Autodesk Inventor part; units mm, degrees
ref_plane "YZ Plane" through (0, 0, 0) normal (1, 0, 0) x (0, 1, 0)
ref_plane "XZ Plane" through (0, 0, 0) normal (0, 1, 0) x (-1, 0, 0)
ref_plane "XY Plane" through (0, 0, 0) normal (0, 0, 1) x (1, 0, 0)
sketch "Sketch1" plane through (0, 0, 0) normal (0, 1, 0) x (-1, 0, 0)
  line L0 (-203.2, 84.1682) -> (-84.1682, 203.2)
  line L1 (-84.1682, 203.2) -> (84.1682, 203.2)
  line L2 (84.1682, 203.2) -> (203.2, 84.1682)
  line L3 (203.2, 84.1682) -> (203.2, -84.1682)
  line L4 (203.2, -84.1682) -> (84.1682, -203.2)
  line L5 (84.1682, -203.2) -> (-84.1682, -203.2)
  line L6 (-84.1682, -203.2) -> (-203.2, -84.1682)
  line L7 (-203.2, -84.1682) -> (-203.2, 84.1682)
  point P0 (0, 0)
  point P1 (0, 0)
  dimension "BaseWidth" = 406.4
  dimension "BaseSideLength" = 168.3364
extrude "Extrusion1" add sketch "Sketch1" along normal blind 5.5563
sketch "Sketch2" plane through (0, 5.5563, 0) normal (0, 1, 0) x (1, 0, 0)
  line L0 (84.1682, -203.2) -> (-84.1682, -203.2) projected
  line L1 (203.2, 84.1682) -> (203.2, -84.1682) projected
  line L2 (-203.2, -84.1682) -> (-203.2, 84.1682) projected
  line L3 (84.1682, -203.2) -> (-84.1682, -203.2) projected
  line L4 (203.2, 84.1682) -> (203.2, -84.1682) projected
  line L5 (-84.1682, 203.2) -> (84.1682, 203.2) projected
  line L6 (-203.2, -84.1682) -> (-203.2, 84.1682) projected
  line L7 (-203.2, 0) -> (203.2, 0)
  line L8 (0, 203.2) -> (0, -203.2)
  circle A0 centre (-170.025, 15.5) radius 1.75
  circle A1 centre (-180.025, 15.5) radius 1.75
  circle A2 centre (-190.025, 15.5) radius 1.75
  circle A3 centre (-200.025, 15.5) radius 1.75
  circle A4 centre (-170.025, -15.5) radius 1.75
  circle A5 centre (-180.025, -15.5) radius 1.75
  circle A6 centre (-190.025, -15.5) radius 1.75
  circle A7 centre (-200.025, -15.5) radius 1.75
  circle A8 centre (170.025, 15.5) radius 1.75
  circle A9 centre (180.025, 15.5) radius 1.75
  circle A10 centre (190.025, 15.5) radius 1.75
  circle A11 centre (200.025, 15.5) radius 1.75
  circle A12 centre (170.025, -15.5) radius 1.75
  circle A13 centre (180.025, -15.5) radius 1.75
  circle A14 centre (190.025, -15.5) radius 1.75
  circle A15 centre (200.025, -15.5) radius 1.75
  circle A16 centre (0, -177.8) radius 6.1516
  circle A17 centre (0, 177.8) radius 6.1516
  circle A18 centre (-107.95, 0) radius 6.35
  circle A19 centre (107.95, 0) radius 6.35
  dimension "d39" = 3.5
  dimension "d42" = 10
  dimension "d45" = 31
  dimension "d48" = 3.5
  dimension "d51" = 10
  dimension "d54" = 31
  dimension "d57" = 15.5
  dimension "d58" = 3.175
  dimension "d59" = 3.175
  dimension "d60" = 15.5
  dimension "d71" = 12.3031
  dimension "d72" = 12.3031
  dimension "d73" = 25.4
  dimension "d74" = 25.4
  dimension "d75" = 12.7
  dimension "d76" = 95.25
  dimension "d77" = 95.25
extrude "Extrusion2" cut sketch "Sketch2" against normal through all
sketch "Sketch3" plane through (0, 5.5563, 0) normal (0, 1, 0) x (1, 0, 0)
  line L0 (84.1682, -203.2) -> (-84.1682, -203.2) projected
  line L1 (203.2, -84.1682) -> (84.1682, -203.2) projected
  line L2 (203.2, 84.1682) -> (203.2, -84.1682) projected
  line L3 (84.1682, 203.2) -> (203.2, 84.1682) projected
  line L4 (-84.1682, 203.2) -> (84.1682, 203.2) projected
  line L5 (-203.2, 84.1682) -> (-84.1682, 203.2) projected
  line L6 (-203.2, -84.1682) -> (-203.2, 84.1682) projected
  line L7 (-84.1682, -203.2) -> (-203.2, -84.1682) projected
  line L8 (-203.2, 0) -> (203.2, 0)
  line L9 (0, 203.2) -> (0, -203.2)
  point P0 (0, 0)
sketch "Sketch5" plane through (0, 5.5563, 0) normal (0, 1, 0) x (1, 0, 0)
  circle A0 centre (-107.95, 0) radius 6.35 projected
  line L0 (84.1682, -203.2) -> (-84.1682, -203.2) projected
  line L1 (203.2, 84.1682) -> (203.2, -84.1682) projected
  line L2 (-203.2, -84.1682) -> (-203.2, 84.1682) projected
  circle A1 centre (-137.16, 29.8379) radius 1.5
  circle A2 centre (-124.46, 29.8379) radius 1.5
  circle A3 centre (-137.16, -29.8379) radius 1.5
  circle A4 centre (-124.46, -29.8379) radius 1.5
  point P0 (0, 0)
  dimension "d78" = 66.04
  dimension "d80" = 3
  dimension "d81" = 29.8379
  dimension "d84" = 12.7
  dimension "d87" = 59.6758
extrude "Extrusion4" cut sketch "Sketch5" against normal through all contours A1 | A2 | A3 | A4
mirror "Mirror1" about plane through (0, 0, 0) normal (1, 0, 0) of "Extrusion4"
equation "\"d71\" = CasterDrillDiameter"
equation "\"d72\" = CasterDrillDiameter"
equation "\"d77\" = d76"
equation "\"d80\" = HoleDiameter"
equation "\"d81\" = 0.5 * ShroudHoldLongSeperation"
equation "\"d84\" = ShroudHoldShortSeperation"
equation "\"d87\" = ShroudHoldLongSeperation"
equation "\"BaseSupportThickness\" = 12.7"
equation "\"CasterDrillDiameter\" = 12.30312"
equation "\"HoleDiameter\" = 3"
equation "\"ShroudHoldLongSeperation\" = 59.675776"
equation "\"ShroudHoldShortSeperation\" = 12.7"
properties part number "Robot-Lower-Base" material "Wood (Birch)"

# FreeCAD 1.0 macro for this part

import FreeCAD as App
import Part
import Sketcher
Q = App.Units.Quantity

doc = App.newDocument("Part")
body = doc.addObject("PartDesign::Body", "Body")

sketch1 = body.newObject("Sketcher::SketchObject", "Sketch")
sketch1.AttachmentSupport = (doc.getObject("XZ_Plane"), [""])
sketch1.MapMode = "FlatFace"
sketch1.addGeometry([
    Part.LineSegment(App.Vector(84, 203, 0), App.Vector(203, 84, 0)),
    Part.LineSegment(App.Vector(203, 84, 0), App.Vector(203, -84, 0)),
    Part.LineSegment(App.Vector(203, -84, 0), App.Vector(84, -203, 0)),
    Part.LineSegment(App.Vector(84, -203, 0), App.Vector(-84, -203, 0)),
    Part.LineSegment(App.Vector(-84, -203, 0), App.Vector(-203, -84, 0)),
    Part.LineSegment(App.Vector(-203, -84, 0), App.Vector(-203, 84, 0)),
    Part.LineSegment(App.Vector(-203, 84, 0), App.Vector(-84, 203, 0)),
    Part.LineSegment(App.Vector(-84, 203, 0), App.Vector(84, 203, 0)),
], False)
sketch1.addConstraint([
    Sketcher.Constraint("Coincident", 0, 2, 1, 1),
    Sketcher.Constraint("Coincident", 1, 2, 2, 1),
    Sketcher.Constraint("Coincident", 2, 2, 3, 1),
    Sketcher.Constraint("Coincident", 3, 2, 4, 1),
    Sketcher.Constraint("Coincident", 4, 2, 5, 1),
    Sketcher.Constraint("Coincident", 5, 2, 6, 1),
    Sketcher.Constraint("Coincident", 6, 2, 7, 1),
    Sketcher.Constraint("Coincident", 7, 2, 0, 1),
    Sketcher.Constraint("Vertical", 1),
    Sketcher.Constraint("Horizontal", 3),
    Sketcher.Constraint("Vertical", 5),
    Sketcher.Constraint("Horizontal", 7),
    Sketcher.Constraint("Symmetric", 0, 2, 4, 2, -1, 1),
    Sketcher.Constraint("Symmetric", 2, 2, 6, 2, -1, 1),
    Sketcher.Constraint("Perpendicular", 0, 2),
    Sketcher.Constraint("Perpendicular", 2, 4),
    Sketcher.Constraint("Perpendicular", 4, 6),
    Sketcher.Constraint("Horizontal", 1, 2, 4, 2),
    Sketcher.Constraint("Vertical", 3, 2, 6, 2),
    Sketcher.Constraint("Equal", 7, 1),
    Sketcher.Constraint("DistanceX", 4, 2, 1, 2, Q("16 in")),
    Sketcher.Constraint("DistanceX", 3, 2, 3, 1, Q("168.3364 mm")),
])
pad1 = body.newObject("PartDesign::Pad", "Pad")
pad1.Profile = sketch1
pad1.Length = Q("0.218752 in")
pad1.Reversed = True

sketch2 = body.newObject("Sketcher::SketchObject", "Sketch001")
sketch2.AttachmentSupport = (doc.getObject("XZ_Plane"), [""])
sketch2.MapMode = "FlatFace"
sketch2.AttachmentOffset = App.Placement(App.Vector(0, 0, -0.218752 * 25.4), App.Rotation())
sketch2.addGeometry([
    Part.Circle(App.Vector(-108, 0, 0), App.Vector(0, 0, 1), 6.3),
    Part.Circle(App.Vector(0, -177.8, 0), App.Vector(0, 0, 1), 6.2),
    Part.Circle(App.Vector(108, 0, 0), App.Vector(0, 0, 1), 6.3),
    Part.Circle(App.Vector(0, 177.8, 0), App.Vector(0, 0, 1), 6.2),
    Part.Circle(App.Vector(-170, -15.5, 0), App.Vector(0, 0, 1), 1.8),
    Part.Circle(App.Vector(-180, -15.5, 0), App.Vector(0, 0, 1), 1.8),
    Part.Circle(App.Vector(-190, -15.5, 0), App.Vector(0, 0, 1), 1.8),
    Part.Circle(App.Vector(-200, -15.5, 0), App.Vector(0, 0, 1), 1.8),
    Part.Circle(App.Vector(-170, 15.5, 0), App.Vector(0, 0, 1), 1.8),
    Part.Circle(App.Vector(-180, 15.5, 0), App.Vector(0, 0, 1), 1.8),
    Part.Circle(App.Vector(-190, 15.5, 0), App.Vector(0, 0, 1), 1.8),
    Part.Circle(App.Vector(-200, 15.5, 0), App.Vector(0, 0, 1), 1.8),
    Part.Circle(App.Vector(170, -15.5, 0), App.Vector(0, 0, 1), 1.8),
    Part.Circle(App.Vector(180, -15.5, 0), App.Vector(0, 0, 1), 1.8),
    Part.Circle(App.Vector(190, -15.5, 0), App.Vector(0, 0, 1), 1.8),
    Part.Circle(App.Vector(200, -15.5, 0), App.Vector(0, 0, 1), 1.8),
    Part.Circle(App.Vector(170, 15.5, 0), App.Vector(0, 0, 1), 1.8),
    Part.Circle(App.Vector(180, 15.5, 0), App.Vector(0, 0, 1), 1.8),
    Part.Circle(App.Vector(190, 15.5, 0), App.Vector(0, 0, 1), 1.8),
    Part.Circle(App.Vector(200, 15.5, 0), App.Vector(0, 0, 1), 1.8),
], False)
sketch2.addConstraint([
    Sketcher.Constraint("Equal", 0, 2),
    Sketcher.Constraint("Equal", 1, 3),
    Sketcher.Constraint("Equal", 4, 5),
    Sketcher.Constraint("Equal", 5, 6),
    Sketcher.Constraint("Equal", 6, 7),
    Sketcher.Constraint("Equal", 7, 8),
    Sketcher.Constraint("Equal", 8, 9),
    Sketcher.Constraint("Equal", 9, 10),
    Sketcher.Constraint("Equal", 10, 11),
    Sketcher.Constraint("Equal", 11, 12),
    Sketcher.Constraint("Equal", 12, 13),
    Sketcher.Constraint("Equal", 13, 14),
    Sketcher.Constraint("Equal", 14, 15),
    Sketcher.Constraint("Equal", 15, 16),
    Sketcher.Constraint("Equal", 16, 17),
    Sketcher.Constraint("Equal", 17, 18),
    Sketcher.Constraint("Equal", 18, 19),
    Sketcher.Constraint("Symmetric", 0, 3, 2, 3, -1, 1),
    Sketcher.Constraint("Symmetric", 1, 3, 3, 3, -1, 1),
    Sketcher.Constraint("Symmetric", 8, 3, 12, 3, -1, 1),
    Sketcher.Constraint("Symmetric", 9, 3, 13, 3, -1, 1),
    Sketcher.Constraint("Symmetric", 10, 3, 14, 3, -1, 1),
    Sketcher.Constraint("Symmetric", 11, 3, 15, 3, -1, 1),
    Sketcher.Constraint("Symmetric", 4, 3, 16, 3, -1, 1),
    Sketcher.Constraint("Symmetric", 5, 3, 17, 3, -1, 1),
    Sketcher.Constraint("Symmetric", 6, 3, 18, 3, -1, 1),
    Sketcher.Constraint("Symmetric", 7, 3, 19, 3, -1, 1),
    Sketcher.Constraint("Symmetric", 4, 3, 12, 3, -2),
    Sketcher.Constraint("Symmetric", 5, 3, 13, 3, -2),
    Sketcher.Constraint("Symmetric", 6, 3, 14, 3, -2),
    Sketcher.Constraint("Symmetric", 7, 3, 15, 3, -2),
    Sketcher.Constraint("PointOnObject", 0, 3, -1),
    Sketcher.Constraint("PointOnObject", 1, 3, -2),
    Sketcher.Constraint("Horizontal", 4, 3, 5, 3),
    Sketcher.Constraint("Horizontal", 5, 3, 6, 3),
    Sketcher.Constraint("Horizontal", 6, 3, 7, 3),
    Sketcher.Constraint("Diameter", 0, Q("0.5 in")),
    Sketcher.Constraint("Diameter", 1, Q("0.484378 in")),
    Sketcher.Constraint("Diameter", 4, Q("0.1378 in")),
    Sketcher.Constraint("DistanceY", 1, 3, -1, 1, Q("7 in")),
    Sketcher.Constraint("DistanceX", 0, 3, 2, 3, Q("8.5 in")),
    Sketcher.Constraint("DistanceX", 5, 3, 4, 3, Q("0.3937 in")),
    Sketcher.Constraint("DistanceX", 6, 3, 5, 3, Q("0.3937 in")),
    Sketcher.Constraint("DistanceX", 7, 3, 6, 3, Q("0.3937 in")),
    Sketcher.Constraint("DistanceY", 4, 3, -1, 1, Q("15.5 mm")),
    Sketcher.Constraint("DistanceX", 7, 3, -1, 1, Q("7.875 in")),
])
pocket1 = body.newObject("PartDesign::Pocket", "Pocket")
pocket1.Profile = sketch2
pocket1.Type = "ThroughAll"
pocket1.Reversed = True

sketch3 = body.newObject("Sketcher::SketchObject", "Sketch002")
sketch3.AttachmentSupport = (doc.getObject("XZ_Plane"), [""])
sketch3.MapMode = "FlatFace"
sketch3.AttachmentOffset = App.Placement(App.Vector(0, 0, -0.218752 * 25.4), App.Rotation())
sketch3.addGeometry([
    Part.Circle(App.Vector(-137.2, -29.8, 0), App.Vector(0, 0, 1), 1.5),
    Part.Circle(App.Vector(-124.5, -29.8, 0), App.Vector(0, 0, 1), 1.5),
    Part.Circle(App.Vector(-137.2, 29.8, 0), App.Vector(0, 0, 1), 1.5),
    Part.Circle(App.Vector(-124.5, 29.8, 0), App.Vector(0, 0, 1), 1.5),
], False)
sketch3.addConstraint([
    Sketcher.Constraint("Equal", 0, 1),
    Sketcher.Constraint("Equal", 1, 2),
    Sketcher.Constraint("Equal", 2, 3),
    Sketcher.Constraint("Symmetric", 0, 3, 2, 3, -1),
    Sketcher.Constraint("Symmetric", 1, 3, 3, 3, -1),
    Sketcher.Constraint("Horizontal", 0, 3, 1, 3),
    Sketcher.Constraint("Diameter", 0, Q("0.1181 in")),
    Sketcher.Constraint("DistanceX", 0, 3, 1, 3, Q("0.5 in")),
    Sketcher.Constraint("DistanceX", 0, 3, -1, 1, Q("5.4 in")),
    Sketcher.Constraint("DistanceY", 0, 3, -1, 1, Q("29.838 mm")),
])
pocket2 = body.newObject("PartDesign::Pocket", "Pocket001")
pocket2.Profile = sketch3
pocket2.Type = "ThroughAll"
pocket2.Reversed = True
doc.recompute()

mirrored = body.newObject("PartDesign::Mirrored", "Mirrored")
mirrored.Originals = [pocket2]
mirrored.MirrorPlane = (doc.getObject("YZ_Plane"), [""])
body.Tip = mirrored

doc.recompute()
